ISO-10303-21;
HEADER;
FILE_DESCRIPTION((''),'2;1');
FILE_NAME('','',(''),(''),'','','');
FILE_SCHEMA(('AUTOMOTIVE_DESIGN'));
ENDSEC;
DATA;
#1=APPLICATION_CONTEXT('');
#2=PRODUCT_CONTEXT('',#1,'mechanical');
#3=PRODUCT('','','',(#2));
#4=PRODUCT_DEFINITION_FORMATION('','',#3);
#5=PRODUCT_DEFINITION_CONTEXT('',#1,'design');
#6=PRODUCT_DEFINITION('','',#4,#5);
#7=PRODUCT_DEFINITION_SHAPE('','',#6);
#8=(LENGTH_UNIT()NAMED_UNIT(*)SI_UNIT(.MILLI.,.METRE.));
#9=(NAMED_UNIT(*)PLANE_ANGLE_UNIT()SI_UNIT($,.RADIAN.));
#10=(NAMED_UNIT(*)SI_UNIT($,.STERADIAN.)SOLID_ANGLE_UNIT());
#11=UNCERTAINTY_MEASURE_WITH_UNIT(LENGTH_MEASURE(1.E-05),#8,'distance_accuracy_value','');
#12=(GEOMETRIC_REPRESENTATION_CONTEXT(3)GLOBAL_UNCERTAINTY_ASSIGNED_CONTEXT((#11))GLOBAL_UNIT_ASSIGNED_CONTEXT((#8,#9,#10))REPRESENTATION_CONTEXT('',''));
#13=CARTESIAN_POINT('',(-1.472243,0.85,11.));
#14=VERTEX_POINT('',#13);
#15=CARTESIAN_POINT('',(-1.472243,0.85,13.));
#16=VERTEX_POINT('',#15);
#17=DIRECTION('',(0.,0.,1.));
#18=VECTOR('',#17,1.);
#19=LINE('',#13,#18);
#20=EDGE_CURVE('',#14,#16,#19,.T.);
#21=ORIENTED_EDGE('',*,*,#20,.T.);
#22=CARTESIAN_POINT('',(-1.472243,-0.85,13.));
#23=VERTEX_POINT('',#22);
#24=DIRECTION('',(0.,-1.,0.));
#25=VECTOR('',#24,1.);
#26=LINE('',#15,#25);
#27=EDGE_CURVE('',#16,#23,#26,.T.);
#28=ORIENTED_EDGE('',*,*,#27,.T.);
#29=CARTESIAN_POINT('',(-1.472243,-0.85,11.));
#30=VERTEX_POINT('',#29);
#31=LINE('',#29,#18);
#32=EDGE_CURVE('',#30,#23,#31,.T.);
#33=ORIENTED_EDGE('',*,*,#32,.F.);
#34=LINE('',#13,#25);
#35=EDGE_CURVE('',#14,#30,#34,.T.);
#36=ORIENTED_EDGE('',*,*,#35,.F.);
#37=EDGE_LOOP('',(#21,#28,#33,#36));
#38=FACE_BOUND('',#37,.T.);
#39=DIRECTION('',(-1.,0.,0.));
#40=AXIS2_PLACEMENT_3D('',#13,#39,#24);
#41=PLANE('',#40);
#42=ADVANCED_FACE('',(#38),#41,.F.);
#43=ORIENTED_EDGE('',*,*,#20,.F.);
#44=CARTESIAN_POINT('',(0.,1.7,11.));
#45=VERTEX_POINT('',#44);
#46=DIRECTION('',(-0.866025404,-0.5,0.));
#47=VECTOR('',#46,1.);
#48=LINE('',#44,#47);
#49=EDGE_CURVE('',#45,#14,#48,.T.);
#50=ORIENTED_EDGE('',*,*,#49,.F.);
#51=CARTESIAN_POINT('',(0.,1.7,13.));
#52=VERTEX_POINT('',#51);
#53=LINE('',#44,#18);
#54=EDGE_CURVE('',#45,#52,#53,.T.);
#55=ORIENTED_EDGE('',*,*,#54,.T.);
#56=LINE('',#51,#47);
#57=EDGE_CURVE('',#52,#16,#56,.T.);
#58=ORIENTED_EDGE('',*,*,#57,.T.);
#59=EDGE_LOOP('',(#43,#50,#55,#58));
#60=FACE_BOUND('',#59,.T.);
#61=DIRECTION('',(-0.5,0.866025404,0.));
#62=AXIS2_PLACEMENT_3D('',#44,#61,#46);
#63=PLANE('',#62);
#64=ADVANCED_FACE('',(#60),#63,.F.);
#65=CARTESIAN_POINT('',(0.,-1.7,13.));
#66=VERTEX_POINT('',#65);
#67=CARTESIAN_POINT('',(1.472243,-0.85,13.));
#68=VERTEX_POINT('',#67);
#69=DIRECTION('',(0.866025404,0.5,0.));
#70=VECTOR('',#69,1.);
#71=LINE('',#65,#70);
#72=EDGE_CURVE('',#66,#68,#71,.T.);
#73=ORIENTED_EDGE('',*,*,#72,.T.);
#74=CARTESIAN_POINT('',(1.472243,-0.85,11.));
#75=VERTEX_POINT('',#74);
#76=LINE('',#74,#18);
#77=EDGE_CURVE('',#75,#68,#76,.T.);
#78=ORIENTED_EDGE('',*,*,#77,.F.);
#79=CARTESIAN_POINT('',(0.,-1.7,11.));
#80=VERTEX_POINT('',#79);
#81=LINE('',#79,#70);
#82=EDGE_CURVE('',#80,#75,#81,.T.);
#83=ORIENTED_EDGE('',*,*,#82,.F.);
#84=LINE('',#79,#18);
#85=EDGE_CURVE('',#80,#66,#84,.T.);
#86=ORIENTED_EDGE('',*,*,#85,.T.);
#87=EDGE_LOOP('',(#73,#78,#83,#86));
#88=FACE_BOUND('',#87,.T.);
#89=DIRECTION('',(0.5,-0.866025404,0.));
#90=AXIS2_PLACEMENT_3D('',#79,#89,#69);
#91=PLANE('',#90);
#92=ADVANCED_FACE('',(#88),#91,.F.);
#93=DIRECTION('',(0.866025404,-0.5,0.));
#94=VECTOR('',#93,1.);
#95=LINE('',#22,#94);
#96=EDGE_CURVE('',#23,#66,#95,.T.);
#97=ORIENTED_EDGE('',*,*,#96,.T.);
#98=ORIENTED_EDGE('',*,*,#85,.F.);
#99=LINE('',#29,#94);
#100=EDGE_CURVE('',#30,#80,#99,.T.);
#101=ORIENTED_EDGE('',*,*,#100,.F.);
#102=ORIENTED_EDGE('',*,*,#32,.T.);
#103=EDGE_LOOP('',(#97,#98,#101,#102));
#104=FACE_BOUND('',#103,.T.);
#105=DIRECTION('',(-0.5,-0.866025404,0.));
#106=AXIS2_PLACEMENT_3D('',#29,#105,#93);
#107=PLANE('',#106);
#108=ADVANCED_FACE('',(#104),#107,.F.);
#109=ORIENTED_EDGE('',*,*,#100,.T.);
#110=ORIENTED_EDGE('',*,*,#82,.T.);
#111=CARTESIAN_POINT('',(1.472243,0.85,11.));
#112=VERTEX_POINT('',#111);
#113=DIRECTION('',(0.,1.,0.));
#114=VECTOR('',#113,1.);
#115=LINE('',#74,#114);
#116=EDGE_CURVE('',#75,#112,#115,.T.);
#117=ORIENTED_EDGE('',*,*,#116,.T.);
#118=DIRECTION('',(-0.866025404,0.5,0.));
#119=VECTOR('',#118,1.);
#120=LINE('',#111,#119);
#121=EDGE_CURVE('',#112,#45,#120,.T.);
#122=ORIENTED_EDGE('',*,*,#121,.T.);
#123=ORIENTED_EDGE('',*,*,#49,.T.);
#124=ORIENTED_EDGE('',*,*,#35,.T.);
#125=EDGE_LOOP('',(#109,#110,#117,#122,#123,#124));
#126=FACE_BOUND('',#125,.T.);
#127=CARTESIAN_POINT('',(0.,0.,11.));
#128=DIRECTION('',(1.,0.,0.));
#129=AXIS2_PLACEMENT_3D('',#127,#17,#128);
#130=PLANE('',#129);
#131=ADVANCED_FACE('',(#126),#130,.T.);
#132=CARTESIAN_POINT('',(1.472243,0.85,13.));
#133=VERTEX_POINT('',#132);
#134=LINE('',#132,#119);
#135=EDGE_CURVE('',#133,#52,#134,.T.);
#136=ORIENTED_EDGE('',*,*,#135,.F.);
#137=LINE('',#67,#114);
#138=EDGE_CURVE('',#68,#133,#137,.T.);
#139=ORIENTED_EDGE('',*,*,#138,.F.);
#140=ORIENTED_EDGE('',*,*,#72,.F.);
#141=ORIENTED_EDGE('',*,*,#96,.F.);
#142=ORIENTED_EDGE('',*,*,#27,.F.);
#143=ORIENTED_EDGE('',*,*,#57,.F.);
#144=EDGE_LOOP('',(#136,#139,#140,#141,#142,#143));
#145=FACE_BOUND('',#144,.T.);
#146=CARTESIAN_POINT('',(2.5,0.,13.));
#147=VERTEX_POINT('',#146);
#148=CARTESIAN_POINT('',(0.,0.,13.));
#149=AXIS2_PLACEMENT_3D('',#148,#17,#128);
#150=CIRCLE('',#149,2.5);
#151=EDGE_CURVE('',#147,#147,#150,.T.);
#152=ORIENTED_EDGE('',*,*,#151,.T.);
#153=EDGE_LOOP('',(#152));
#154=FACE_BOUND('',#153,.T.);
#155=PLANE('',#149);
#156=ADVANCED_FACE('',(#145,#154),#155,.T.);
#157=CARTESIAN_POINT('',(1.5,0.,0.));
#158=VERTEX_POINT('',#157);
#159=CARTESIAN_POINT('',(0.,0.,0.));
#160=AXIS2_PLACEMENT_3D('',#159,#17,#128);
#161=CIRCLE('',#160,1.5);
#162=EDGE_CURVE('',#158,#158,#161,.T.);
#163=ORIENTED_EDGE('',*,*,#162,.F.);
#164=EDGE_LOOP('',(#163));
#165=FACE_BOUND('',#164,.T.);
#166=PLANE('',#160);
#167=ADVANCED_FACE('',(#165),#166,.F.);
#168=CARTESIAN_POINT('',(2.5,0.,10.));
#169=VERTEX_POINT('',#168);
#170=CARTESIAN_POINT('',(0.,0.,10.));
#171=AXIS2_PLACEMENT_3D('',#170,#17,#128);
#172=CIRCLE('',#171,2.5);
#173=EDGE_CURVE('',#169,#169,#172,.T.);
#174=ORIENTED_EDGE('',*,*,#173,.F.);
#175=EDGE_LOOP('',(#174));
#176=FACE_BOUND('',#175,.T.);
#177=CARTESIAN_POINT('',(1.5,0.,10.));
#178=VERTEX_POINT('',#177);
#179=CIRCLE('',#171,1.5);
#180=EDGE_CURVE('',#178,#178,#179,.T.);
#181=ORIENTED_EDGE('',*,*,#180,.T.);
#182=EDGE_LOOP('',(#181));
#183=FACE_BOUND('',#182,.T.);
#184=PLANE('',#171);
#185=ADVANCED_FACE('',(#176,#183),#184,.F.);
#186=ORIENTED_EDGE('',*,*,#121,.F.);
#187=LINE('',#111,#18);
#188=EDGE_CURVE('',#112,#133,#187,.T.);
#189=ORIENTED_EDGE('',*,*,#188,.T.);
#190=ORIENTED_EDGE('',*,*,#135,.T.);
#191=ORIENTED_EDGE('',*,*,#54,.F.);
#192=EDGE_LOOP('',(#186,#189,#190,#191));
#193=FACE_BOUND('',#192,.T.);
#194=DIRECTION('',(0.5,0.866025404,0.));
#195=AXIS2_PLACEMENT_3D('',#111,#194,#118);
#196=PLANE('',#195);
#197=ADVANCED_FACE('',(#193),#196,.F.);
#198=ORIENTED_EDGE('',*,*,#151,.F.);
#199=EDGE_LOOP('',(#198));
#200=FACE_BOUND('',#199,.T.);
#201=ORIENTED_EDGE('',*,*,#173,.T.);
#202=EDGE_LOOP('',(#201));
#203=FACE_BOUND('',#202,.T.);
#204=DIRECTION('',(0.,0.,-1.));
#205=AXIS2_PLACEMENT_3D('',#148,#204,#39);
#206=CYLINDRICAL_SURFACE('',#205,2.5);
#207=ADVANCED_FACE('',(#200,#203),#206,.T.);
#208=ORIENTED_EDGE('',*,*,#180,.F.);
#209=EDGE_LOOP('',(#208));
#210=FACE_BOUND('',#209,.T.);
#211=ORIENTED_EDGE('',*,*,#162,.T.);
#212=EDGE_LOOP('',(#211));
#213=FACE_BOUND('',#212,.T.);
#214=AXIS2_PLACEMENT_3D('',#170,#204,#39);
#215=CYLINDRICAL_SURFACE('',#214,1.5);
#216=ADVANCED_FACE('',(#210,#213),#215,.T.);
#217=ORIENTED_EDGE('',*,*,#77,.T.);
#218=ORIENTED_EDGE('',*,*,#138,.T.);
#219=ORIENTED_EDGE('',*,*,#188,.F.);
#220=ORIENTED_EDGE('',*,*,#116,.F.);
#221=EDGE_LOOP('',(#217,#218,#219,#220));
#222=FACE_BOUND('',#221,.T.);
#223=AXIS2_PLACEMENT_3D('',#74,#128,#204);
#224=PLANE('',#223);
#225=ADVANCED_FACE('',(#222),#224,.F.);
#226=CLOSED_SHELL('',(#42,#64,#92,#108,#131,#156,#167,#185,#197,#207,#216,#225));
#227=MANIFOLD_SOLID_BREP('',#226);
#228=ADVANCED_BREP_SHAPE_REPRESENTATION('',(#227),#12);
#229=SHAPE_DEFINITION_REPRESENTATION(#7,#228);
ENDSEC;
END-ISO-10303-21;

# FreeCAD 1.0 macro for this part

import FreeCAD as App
import Part
import Sketcher
from FreeCAD import Vector
Q = App.Units.Quantity

doc = App.newDocument("Part")
body = doc.addObject("PartDesign::Body", "Body")

# Sketch on XY plane
sketch1 = body.newObject("Sketcher::SketchObject", "Sketch")
sketch1.AttachmentSupport = (doc.getObject("XY_Plane"), [""])
sketch1.MapMode = "FlatFace"
sketch1.addGeometry(Part.Circle(Vector(0, 0, 0), Vector(0, 0, 1), 1.5), False)
sketch1.addConstraint(Sketcher.Constraint("Coincident", 0, 3, -1, 1))
sketch1.addConstraint(Sketcher.Constraint("Diameter", 0, Q("3 mm")))
pad1 = body.newObject("PartDesign::Pad", "Pad")
pad1.Profile = sketch1
pad1.Length = 10

# Sketch on XY plane
sketch2 = body.newObject("Sketcher::SketchObject", "Sketch001")
sketch2.AttachmentSupport = (doc.getObject("XY_Plane"), [""])
sketch2.MapMode = "FlatFace"
sketch2.AttachmentOffset = App.Placement(Vector(0, 0, 10), App.Rotation())
sketch2.addGeometry(Part.Circle(Vector(0, 0, 0), Vector(0, 0, 1), 2.5), False)
sketch2.addConstraint(Sketcher.Constraint("Coincident", 0, 3, -1, 1))
sketch2.addConstraint(Sketcher.Constraint("Diameter", 0, Q("5 mm")))
pad2 = body.newObject("PartDesign::Pad", "Pad001")
pad2.Profile = sketch2
pad2.Length = 3

# Sketch on XY plane
sketch3 = body.newObject("Sketcher::SketchObject", "Sketch002")
sketch3.AttachmentSupport = (doc.getObject("XY_Plane"), [""])
sketch3.MapMode = "FlatFace"
sketch3.AttachmentOffset = App.Placement(Vector(0, 0, 13), App.Rotation())
sketch3.addGeometry(Part.LineSegment(Vector(0, 1.7, 0), Vector(-1.5, 0.8, 0)), False)
sketch3.addGeometry(Part.LineSegment(Vector(-1.5, 0.8, 0), Vector(-1.5, -0.8, 0)), False)
sketch3.addGeometry(Part.LineSegment(Vector(-1.5, -0.8, 0), Vector(0, -1.7, 0)), False)
sketch3.addGeometry(Part.LineSegment(Vector(0, -1.7, 0), Vector(1.5, -0.8, 0)), False)
sketch3.addGeometry(Part.LineSegment(Vector(1.5, -0.8, 0), Vector(1.5, 0.8, 0)), False)
sketch3.addGeometry(Part.LineSegment(Vector(1.5, 0.8, 0), Vector(0, 1.7, 0)), False)
sketch3.addConstraint(Sketcher.Constraint("Coincident", 0, 2, 1, 1))
sketch3.addConstraint(Sketcher.Constraint("Coincident", 1, 2, 2, 1))
sketch3.addConstraint(Sketcher.Constraint("Coincident", 2, 2, 3, 1))
sketch3.addConstraint(Sketcher.Constraint("Coincident", 3, 2, 4, 1))
sketch3.addConstraint(Sketcher.Constraint("Coincident", 4, 2, 5, 1))
sketch3.addConstraint(Sketcher.Constraint("Coincident", 5, 2, 0, 1))
sketch3.addConstraint(Sketcher.Constraint("Vertical", 1))
sketch3.addConstraint(Sketcher.Constraint("Vertical", 4))
sketch3.addConstraint(Sketcher.Constraint("Symmetric", 0, 2, 3, 2, -1, 1))
sketch3.addConstraint(Sketcher.Constraint("Symmetric", 2, 2, 5, 2, -1, 1))
sketch3.addConstraint(Sketcher.Constraint("PointOnObject", 2, 2, -2))
sketch3.addConstraint(Sketcher.Constraint("Parallel", 2, 5))
sketch3.addConstraint(Sketcher.Constraint("Horizontal", 1, 2, 3, 2))
sketch3.addConstraint(Sketcher.Constraint("Angle", 0, Q("-150 deg")))
sketch3.addConstraint(Sketcher.Constraint("DistanceY", 1, 2, 1, 1, Q("1.7 mm")))
sketch3.addConstraint(Sketcher.Constraint("Distance", 0, Q("1.7 mm")))
pocket1 = body.newObject("PartDesign::Pocket", "Pocket")
pocket1.Profile = sketch3
pocket1.Length = 2

doc.recompute()
